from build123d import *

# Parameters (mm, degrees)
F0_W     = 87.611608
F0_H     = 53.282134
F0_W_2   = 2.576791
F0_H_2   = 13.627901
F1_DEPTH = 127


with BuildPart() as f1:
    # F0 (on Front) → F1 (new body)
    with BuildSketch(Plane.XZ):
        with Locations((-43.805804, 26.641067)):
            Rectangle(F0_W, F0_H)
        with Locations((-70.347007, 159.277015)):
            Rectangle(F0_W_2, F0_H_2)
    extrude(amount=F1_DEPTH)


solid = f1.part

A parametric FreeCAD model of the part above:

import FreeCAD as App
import Part
import Sketcher
from FreeCAD import Vector
Q = App.Units.Quantity


def add_polygon(sketch, points):
    """Adds a closed chain of lines whose ends are joined by coincident constraints."""
    first, n = sketch.GeometryCount, len(points)
    for a, b in zip(points, points[1:] + points[:1]):
        sketch.addGeometry(Part.LineSegment(App.Vector(*a, 0), App.Vector(*b, 0)), False)
    for i in range(n):
        sketch.addConstraint(Sketcher.Constraint("Coincident", first + i, 2, first + (i + 1) % n, 1))

doc = App.newDocument("Part")
body = doc.addObject("PartDesign::Body", "Body")
body.AllowCompound = True

sketch1 = body.newObject("Sketcher::SketchObject", "Sketch")
sketch1.AttachmentSupport = (doc.getObject("XZ_Plane"), [""])
sketch1.MapMode = "FlatFace"
add_polygon(sketch1, [(-87.6, 53.3), (-87.6, 0), (0, 0), (0, 53.3)])
add_polygon(sketch1, [(-71.6, 166.1), (-71.6, 152.5), (-69.1, 152.5), (-69.1, 166.1)])
sketch1.addConstraint([
    Sketcher.Constraint("Vertical", 0),
    Sketcher.Constraint("Horizontal", 1),
    Sketcher.Constraint("Vertical", 2),
    Sketcher.Constraint("Horizontal", 3),
    Sketcher.Constraint("Vertical", 4),
    Sketcher.Constraint("Horizontal", 5),
    Sketcher.Constraint("Vertical", 6),
    Sketcher.Constraint("Horizontal", 7),
    Sketcher.Constraint("Coincident", 1, 2, -1, 1),
    Sketcher.Constraint("DistanceY", 4, 2, 4, 1, 13.627901),
    Sketcher.Constraint("DistanceX", 1, 1, 1, 2, 87.611608),
    Sketcher.Constraint("DistanceX", 5, 1, 5, 2, 2.576791),
    Sketcher.Constraint("DistanceY", 0, 2, 0, 1, 53.282134),
    Sketcher.Constraint("DistanceX", 5, 2, -1, 1, 69.058611),
    Sketcher.Constraint("DistanceY", 3, 2, 4, 2, 99.180931),
])
pad1 = body.newObject("PartDesign::Pad", "Pad")
pad1.Profile = sketch1
pad1.Length = Q("5 in")

doc.recompute()
